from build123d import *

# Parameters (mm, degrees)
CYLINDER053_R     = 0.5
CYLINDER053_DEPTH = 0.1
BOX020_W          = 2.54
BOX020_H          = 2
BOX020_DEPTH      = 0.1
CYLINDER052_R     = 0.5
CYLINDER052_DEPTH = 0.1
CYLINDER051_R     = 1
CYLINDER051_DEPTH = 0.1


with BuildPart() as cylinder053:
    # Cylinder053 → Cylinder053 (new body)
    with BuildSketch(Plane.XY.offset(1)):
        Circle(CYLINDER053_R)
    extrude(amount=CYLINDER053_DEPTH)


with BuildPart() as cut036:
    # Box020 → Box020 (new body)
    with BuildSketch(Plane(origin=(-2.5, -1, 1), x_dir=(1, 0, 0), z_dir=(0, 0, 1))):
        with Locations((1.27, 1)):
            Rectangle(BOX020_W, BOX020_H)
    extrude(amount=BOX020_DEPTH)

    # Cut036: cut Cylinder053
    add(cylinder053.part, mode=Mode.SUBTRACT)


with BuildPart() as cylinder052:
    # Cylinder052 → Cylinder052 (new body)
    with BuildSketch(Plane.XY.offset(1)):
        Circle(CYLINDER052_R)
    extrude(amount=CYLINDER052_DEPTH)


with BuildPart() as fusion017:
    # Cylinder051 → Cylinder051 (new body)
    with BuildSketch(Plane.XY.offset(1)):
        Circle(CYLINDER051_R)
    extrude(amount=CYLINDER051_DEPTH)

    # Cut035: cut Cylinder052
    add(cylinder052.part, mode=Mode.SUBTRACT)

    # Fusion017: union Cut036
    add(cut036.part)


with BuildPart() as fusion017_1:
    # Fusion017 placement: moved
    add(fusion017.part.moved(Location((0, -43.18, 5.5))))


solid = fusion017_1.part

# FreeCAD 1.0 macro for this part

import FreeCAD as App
import Part
import Sketcher

V = App.Vector


def add_polygon(sketch, points):
    """Adds a closed chain of lines whose ends are joined by coincident constraints."""
    first, n = sketch.GeometryCount, len(points)
    for a, b in zip(points, points[1:] + points[:1]):
        sketch.addGeometry(Part.LineSegment(App.Vector(*a, 0), App.Vector(*b, 0)), False)
    for i in range(n):
        sketch.addConstraint(Sketcher.Constraint("Coincident", first + i, 2, first + (i + 1) % n, 1))

doc = App.newDocument("Part")
body = doc.addObject("PartDesign::Body", "Body")

sketch1 = body.newObject("Sketcher::SketchObject", "Sketch")
sketch1.AttachmentSupport = (doc.getObject("XY_Plane"), [""])
sketch1.MapMode = "FlatFace"
sketch1.AttachmentOffset = App.Placement(V(0, 0, 1), App.Rotation())
sketch1.addGeometry(Part.Circle(V(0, 0, 0), V(0, 0, 1), 0.5), False)
sketch1.addConstraint([
    Sketcher.Constraint("Coincident", 0, 3, -1, 1),
    Sketcher.Constraint("Diameter", 0, 1.0),
])
pad1 = body.newObject("PartDesign::Pad", "Pad")
pad1.Profile = sketch1
pad1.Length = 0.1
body2 = doc.addObject("PartDesign::Body", "Body001")

sketch2 = body2.newObject("Sketcher::SketchObject", "Sketch001")
sketch2.AttachmentSupport = (doc.getObject("XY_Plane001"), [""])
sketch2.MapMode = "FlatFace"
sketch2.AttachmentOffset = App.Placement(V(0, 0, 1), App.Rotation())
add_polygon(sketch2, [(-2.5, 1), (-2.5, -1), (0, -1), (0, 1)])
sketch2.addConstraint([
    Sketcher.Constraint("Vertical", 0),
    Sketcher.Constraint("Horizontal", 1),
    Sketcher.Constraint("Vertical", 2),
    Sketcher.Constraint("Horizontal", 3),
    Sketcher.Constraint("DistanceY", 0, 2, 0, 1, 2.0),
    Sketcher.Constraint("DistanceY", 0, 2, -1, 1, 1.0),
    Sketcher.Constraint("DistanceX", 1, 1, 1, 2, 2.54),
    Sketcher.Constraint("DistanceX", 0, 2, -1, 1, 2.5),
])
pad2 = body2.newObject("PartDesign::Pad", "Pad001")
pad2.Profile = sketch2
pad2.Length = 0.1
doc.recompute()

boolean = body2.newObject("PartDesign::Boolean", "Boolean")
boolean.Type = "Cut"
boolean.addObjects([body])
body3 = doc.addObject("PartDesign::Body", "Body002")

sketch3 = body3.newObject("Sketcher::SketchObject", "Sketch002")
sketch3.AttachmentSupport = (doc.getObject("XY_Plane002"), [""])
sketch3.MapMode = "FlatFace"
sketch3.AttachmentOffset = App.Placement(V(0, 0, 1), App.Rotation())
sketch3.addGeometry(Part.Circle(V(0, 0, 0), V(0, 0, 1), 0.5), False)
sketch3.addConstraint([
    Sketcher.Constraint("Coincident", 0, 3, -1, 1),
    Sketcher.Constraint("Diameter", 0, 1.0),
])
pad3 = body3.newObject("PartDesign::Pad", "Pad002")
pad3.Profile = sketch3
pad3.Length = 0.1
body4 = doc.addObject("PartDesign::Body", "Body003")

sketch4 = body4.newObject("Sketcher::SketchObject", "Sketch003")
sketch4.AttachmentSupport = (doc.getObject("XY_Plane003"), [""])
sketch4.MapMode = "FlatFace"
sketch4.AttachmentOffset = App.Placement(V(0, 0, 1), App.Rotation())
sketch4.addGeometry(Part.Circle(V(0, 0, 0), V(0, 0, 1), 1), False)
sketch4.addConstraint([
    Sketcher.Constraint("Coincident", 0, 3, -1, 1),
    Sketcher.Constraint("Diameter", 0, 2.0),
])
pad4 = body4.newObject("PartDesign::Pad", "Pad003")
pad4.Profile = sketch4
pad4.Length = 0.1
doc.recompute()

boolean2 = body4.newObject("PartDesign::Boolean", "Boolean001")
boolean2.Type = "Cut"
boolean2.addObjects([body3])
doc.recompute()

boolean3 = body4.newObject("PartDesign::Boolean", "Boolean002")
boolean3.Type = "Fuse"
boolean3.addObjects([body2])
body5 = doc.addObject("PartDesign::Body", "Body004")
doc.recompute()

body4.Placement = App.Placement(V(0, -43.18, 5.5), App.Rotation(V(0, 0, 1), 0))
boolean4 = body5.newObject("PartDesign::Boolean", "Boolean003")
boolean4.Type = "Fuse"
boolean4.addObjects([body4])

doc.recompute()
